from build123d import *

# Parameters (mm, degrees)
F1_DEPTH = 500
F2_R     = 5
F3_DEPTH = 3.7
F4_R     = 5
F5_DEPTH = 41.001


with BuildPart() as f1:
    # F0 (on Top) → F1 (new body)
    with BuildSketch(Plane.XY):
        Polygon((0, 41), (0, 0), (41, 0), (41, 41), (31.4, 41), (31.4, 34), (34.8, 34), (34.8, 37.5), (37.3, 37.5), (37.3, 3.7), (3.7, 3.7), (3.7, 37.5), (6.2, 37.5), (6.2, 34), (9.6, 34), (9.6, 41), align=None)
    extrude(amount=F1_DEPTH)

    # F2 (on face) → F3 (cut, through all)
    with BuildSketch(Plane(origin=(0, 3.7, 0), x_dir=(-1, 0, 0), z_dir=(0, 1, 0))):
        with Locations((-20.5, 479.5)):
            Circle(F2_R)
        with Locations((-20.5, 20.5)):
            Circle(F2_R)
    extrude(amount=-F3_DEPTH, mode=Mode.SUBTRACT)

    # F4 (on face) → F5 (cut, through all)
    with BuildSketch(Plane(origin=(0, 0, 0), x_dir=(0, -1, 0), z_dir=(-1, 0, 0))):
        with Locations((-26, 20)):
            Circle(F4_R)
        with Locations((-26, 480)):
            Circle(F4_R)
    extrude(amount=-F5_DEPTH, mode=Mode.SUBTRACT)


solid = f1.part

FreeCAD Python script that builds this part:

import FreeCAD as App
import Part
import Sketcher
from FreeCAD import Vector


def add_polygon(sketch, points):
    """Adds a closed chain of lines whose ends are joined by coincident constraints."""
    first, n = sketch.GeometryCount, len(points)
    for a, b in zip(points, points[1:] + points[:1]):
        sketch.addGeometry(Part.LineSegment(App.Vector(*a, 0), App.Vector(*b, 0)), False)
    for i in range(n):
        sketch.addConstraint(Sketcher.Constraint("Coincident", first + i, 2, first + (i + 1) % n, 1))

doc = App.newDocument("Part")
body = doc.addObject("PartDesign::Body", "Body")

# Sketch on XY plane
sketch1 = body.newObject("Sketcher::SketchObject", "Sketch")
sketch1.AttachmentSupport = (doc.getObject("XY_Plane"), [""])
sketch1.MapMode = "FlatFace"
add_polygon(sketch1, [(0, 41), (0, 0), (41, 0), (41, 41), (31.4, 41), (31.4, 34), (34.8, 34), (34.8, 37.5), (37.3, 37.5), (37.3, 3.7), (3.7, 3.7), (3.7, 37.5), (6.2, 37.5), (6.2, 34), (9.6, 34), (9.6, 41)])  # lines 0-15
sketch1.addConstraint([
    Sketcher.Constraint("Vertical", 0),
    Sketcher.Constraint("Horizontal", 1),
    Sketcher.Constraint("Vertical", 2),
    Sketcher.Constraint("Horizontal", 3),
    Sketcher.Constraint("Vertical", 4),
    Sketcher.Constraint("Horizontal", 5),
    Sketcher.Constraint("Vertical", 6),
    Sketcher.Constraint("Horizontal", 7),
    Sketcher.Constraint("Vertical", 8),
    Sketcher.Constraint("Horizontal", 9),
    Sketcher.Constraint("Vertical", 10),
    Sketcher.Constraint("Horizontal", 11),
    Sketcher.Constraint("Vertical", 12),
    Sketcher.Constraint("Horizontal", 13),
    Sketcher.Constraint("Vertical", 14),
    Sketcher.Constraint("Horizontal", 15),
    Sketcher.Constraint("Coincident", 0, 2, -1, 1),
    Sketcher.Constraint("Horizontal", 7, 2, 10, 2),
    Sketcher.Constraint("Horizontal", 5, 2, 12, 2),
    Sketcher.Constraint("Horizontal", 3, 2, 14, 2),
    Sketcher.Constraint("Equal", 7, 11),
    Sketcher.Constraint("Equal", 5, 13),
    Sketcher.Constraint("Equal", 3, 15),
    Sketcher.Constraint("Equal", 1, 0),
    Sketcher.Constraint("DistanceX", 1, 1, 1, 2, 41.0),
    Sketcher.Constraint("DistanceY", 4, 2, 4, 1, 7.0),
    Sketcher.Constraint("DistanceX", 3, 2, 3, 1, 9.6),
    Sketcher.Constraint("DistanceX", 5, 1, 5, 2, 3.4),
    Sketcher.Constraint("DistanceX", 7, 1, 7, 2, 2.5),
    Sketcher.Constraint("DistanceY", 6, 1, 6, 2, 3.5),
    Sketcher.Constraint("DistanceY", 8, 2, 8, 1, 33.8),
])
pad1 = body.newObject("PartDesign::Pad", "Pad")
pad1.Profile = sketch1
pad1.Length = 500

# Sketch on XZ plane
sketch2 = body.newObject("Sketcher::SketchObject", "Sketch001")
sketch2.AttachmentSupport = (doc.getObject("XZ_Plane"), [""])
sketch2.MapMode = "FlatFace"
sketch2.AttachmentOffset = App.Placement(Vector(0, 0, -3.7), App.Rotation())
sketch2.addGeometry([
    Part.Circle(Vector(20, 480, 0), Vector(0, 0, 1), 5),
    Part.Circle(Vector(20, 20, 0), Vector(0, 0, 1), 5),
], False)
sketch2.addConstraint([
    Sketcher.Constraint("Equal", 0, 1),
    Sketcher.Constraint("Vertical", 0, 3, 1, 3),
    Sketcher.Constraint("Diameter", 0, 10.0),
    Sketcher.Constraint("DistanceY", 1, 3, 0, 3, 459.0),
    Sketcher.Constraint("DistanceX", -1, 1, 0, 3, 20.5),
    Sketcher.Constraint("DistanceY", -1, 1, 0, 3, 479.5),
])
pocket1 = body.newObject("PartDesign::Pocket", "Pocket")
pocket1.Profile = sketch2
pocket1.Type = "ThroughAll"
pocket1.Reversed = True

# Sketch on YZ plane
sketch3 = body.newObject("Sketcher::SketchObject", "Sketch002")
sketch3.AttachmentSupport = (doc.getObject("YZ_Plane"), [""])
sketch3.MapMode = "FlatFace"
sketch3.addGeometry([
    Part.Circle(Vector(26, 20, 0), Vector(0, 0, 1), 5),
    Part.Circle(Vector(26, 480, 0), Vector(0, 0, 1), 5),
], False)
sketch3.addConstraint([
    Sketcher.Constraint("Equal", 0, 1),
    Sketcher.Constraint("Vertical", 0, 3, 1, 3),
    Sketcher.Constraint("Diameter", 0, 10.0),
    Sketcher.Constraint("DistanceX", -1, 1, 0, 3, 26.0),
    Sketcher.Constraint("DistanceY", -1, 1, 0, 3, 20.0),
    Sketcher.Constraint("DistanceY", -1, 1, 1, 3, 480.0),
])
pocket2 = body.newObject("PartDesign::Pocket", "Pocket001")
pocket2.Profile = sketch3
pocket2.Type = "ThroughAll"
pocket2.Reversed = True

doc.recompute()
